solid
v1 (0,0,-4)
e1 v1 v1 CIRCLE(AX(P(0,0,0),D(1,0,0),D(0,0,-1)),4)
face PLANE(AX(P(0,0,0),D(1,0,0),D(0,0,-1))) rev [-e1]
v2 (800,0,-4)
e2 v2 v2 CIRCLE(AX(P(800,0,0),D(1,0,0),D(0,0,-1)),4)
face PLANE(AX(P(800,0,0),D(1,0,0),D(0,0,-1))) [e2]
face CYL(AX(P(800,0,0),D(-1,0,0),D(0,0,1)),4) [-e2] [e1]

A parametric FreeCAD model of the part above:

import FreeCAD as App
import Part
import Sketcher
Q = App.Units.Quantity

doc = App.newDocument("Part")
params = doc.addObject("Spreadsheet::Sheet", "Params")
for row, (alias, value) in enumerate([
    ("sketch1_diameter", "8 mm"),
    ("pad1_length", "800 mm"),
], start=1):
    params.set(f"A{row}", alias)
    params.set(f"B{row}", "=" + value)
    params.setAlias(f"B{row}", alias)

body = doc.addObject("PartDesign::Body", "Body")

sketch1 = body.newObject("Sketcher::SketchObject", "Sketch")
sketch1.AttachmentSupport = (doc.getObject("YZ_Plane"), [""])
sketch1.MapMode = "FlatFace"
sketch1.addGeometry(Part.Circle(App.Vector(0, 0, 0), App.Vector(0, 0, 1), 4), False)
sketch1.addConstraint([
    Sketcher.Constraint("Coincident", 0, 3, -1, 1),
    Sketcher.Constraint("Diameter", 0, Q("8 mm")),
])
sketch1.setExpression("Constraints[1]", "Params.sketch1_diameter")
pad1 = body.newObject("PartDesign::Pad", "Pad")
pad1.Profile = sketch1
pad1.setExpression("Length", "Params.pad1_length")

doc.recompute()
